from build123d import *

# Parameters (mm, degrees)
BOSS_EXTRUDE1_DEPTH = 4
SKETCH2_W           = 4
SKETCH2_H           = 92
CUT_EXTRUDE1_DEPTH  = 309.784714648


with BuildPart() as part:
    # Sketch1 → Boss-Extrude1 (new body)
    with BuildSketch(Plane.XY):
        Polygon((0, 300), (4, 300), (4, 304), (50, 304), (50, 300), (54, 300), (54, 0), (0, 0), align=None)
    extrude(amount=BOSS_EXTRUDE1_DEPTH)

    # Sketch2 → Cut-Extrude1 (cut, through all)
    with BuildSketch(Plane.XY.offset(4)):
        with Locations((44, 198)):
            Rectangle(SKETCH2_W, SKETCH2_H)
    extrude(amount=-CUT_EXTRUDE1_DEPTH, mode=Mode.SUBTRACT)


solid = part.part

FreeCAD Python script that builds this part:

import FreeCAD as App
import Part
import Sketcher

V = App.Vector

doc = App.newDocument("Part")
body = doc.addObject("PartDesign::Body", "Body")

sketch1 = body.newObject("Sketcher::SketchObject", "Sketch")
sketch1.AttachmentSupport = (doc.getObject("XY_Plane"), [""])
sketch1.MapMode = "FlatFace"
sketch1.addGeometry([
    Part.LineSegment(V(4, 300, 0), V(0, 300, 0)),
    Part.LineSegment(V(0, 300, 0), V(0, 0, 0)),
    Part.LineSegment(V(0, 0, 0), V(54, 0, 0)),
    Part.LineSegment(V(54, 0, 0), V(54, 300, 0)),
    Part.LineSegment(V(54, 300, 0), V(50, 300, 0)),
    Part.LineSegment(V(50, 300, 0), V(50, 304, 0)),
    Part.LineSegment(V(50, 304, 0), V(4, 304, 0)),
    Part.LineSegment(V(4, 304, 0), V(4, 300, 0)),
], False)
sketch1.addConstraint([
    Sketcher.Constraint("Coincident", 0, 2, 1, 1),
    Sketcher.Constraint("Coincident", 1, 2, 2, 1),
    Sketcher.Constraint("Coincident", 2, 2, 3, 1),
    Sketcher.Constraint("Coincident", 3, 2, 4, 1),
    Sketcher.Constraint("Coincident", 4, 2, 5, 1),
    Sketcher.Constraint("Coincident", 5, 2, 6, 1),
    Sketcher.Constraint("Coincident", 6, 2, 7, 1),
    Sketcher.Constraint("Coincident", 7, 2, 0, 1),
    Sketcher.Constraint("Horizontal", 0),
    Sketcher.Constraint("Vertical", 1),
    Sketcher.Constraint("Horizontal", 2),
    Sketcher.Constraint("Vertical", 3),
    Sketcher.Constraint("Horizontal", 4),
    Sketcher.Constraint("Vertical", 5),
    Sketcher.Constraint("Horizontal", 6),
    Sketcher.Constraint("Vertical", 7),
    Sketcher.Constraint("Coincident", 1, 2, -1, 1),
    Sketcher.Constraint("Horizontal", 0, 2, 3, 2),
    Sketcher.Constraint("Equal", 0, 4),
    Sketcher.Constraint("Equal", 4, 5),
    Sketcher.Constraint("DistanceX", 0, 2, 0, 1, 4.0),
    Sketcher.Constraint("DistanceX", 2, 1, 2, 2, 54.0),
    Sketcher.Constraint("DistanceY", 1, 2, 1, 1, 300.0),
])
pad1 = body.newObject("PartDesign::Pad", "Pad")
pad1.Profile = sketch1
pad1.Length = 4

sketch2 = body.newObject("Sketcher::SketchObject", "Sketch001")
sketch2.AttachmentSupport = (doc.getObject("XY_Plane"), [""])
sketch2.MapMode = "FlatFace"
sketch2.AttachmentOffset = App.Placement(V(0, 0, 4), App.Rotation())
sketch2.addGeometry([
    Part.LineSegment(V(42, 244, 0), V(42, 152, 0)),
    Part.LineSegment(V(42, 152, 0), V(46, 152, 0)),
    Part.LineSegment(V(46, 152, 0), V(46, 244, 0)),
    Part.LineSegment(V(46, 244, 0), V(42, 244, 0)),
], False)
sketch2.addConstraint([
    Sketcher.Constraint("Coincident", 0, 2, 1, 1),
    Sketcher.Constraint("Coincident", 1, 2, 2, 1),
    Sketcher.Constraint("Coincident", 2, 2, 3, 1),
    Sketcher.Constraint("Coincident", 3, 2, 0, 1),
    Sketcher.Constraint("Vertical", 0),
    Sketcher.Constraint("Horizontal", 1),
    Sketcher.Constraint("Vertical", 2),
    Sketcher.Constraint("Horizontal", 3),
    Sketcher.Constraint("DistanceX", 1, 1, 1, 2, 4.0),
    Sketcher.Constraint("DistanceY", 0, 2, 0, 1, 92.0),
    Sketcher.Constraint("DistanceX", -1, 1, 0, 2, 42.0),
    Sketcher.Constraint("DistanceY", -1, 1, 0, 2, 152.0),
])
pocket1 = body.newObject("PartDesign::Pocket", "Pocket")
pocket1.Profile = sketch2
pocket1.Type = "ThroughAll"

doc.recompute()
